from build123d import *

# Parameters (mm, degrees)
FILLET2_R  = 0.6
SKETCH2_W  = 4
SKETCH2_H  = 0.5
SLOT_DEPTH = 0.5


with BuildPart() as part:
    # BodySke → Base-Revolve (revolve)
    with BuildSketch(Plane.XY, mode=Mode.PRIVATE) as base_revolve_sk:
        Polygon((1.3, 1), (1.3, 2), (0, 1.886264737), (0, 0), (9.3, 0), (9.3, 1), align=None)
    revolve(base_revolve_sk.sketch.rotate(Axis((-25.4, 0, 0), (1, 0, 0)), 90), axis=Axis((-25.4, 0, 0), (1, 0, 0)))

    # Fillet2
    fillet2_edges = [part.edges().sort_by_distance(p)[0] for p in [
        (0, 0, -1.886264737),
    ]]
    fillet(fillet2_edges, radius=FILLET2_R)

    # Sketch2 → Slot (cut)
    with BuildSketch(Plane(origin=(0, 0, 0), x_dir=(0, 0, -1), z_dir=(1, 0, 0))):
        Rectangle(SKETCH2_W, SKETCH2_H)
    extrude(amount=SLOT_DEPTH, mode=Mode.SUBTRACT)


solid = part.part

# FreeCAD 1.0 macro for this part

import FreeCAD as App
import Part
import Sketcher
Q = App.Units.Quantity


def edges_at(feature, points):
    """Names of the edges that pass closest to the given points."""
    edges = feature.Shape.Edges
    near = lambda p: min(range(len(edges)), key=lambda i: edges[i].distToShape(Part.Vertex(*p))[0])
    return sorted({f"Edge{near(p) + 1}" for p in points})

doc = App.newDocument("Part")
body = doc.addObject("PartDesign::Body", "Body")

sketch1 = doc.addObject("Sketcher::SketchObject", "Sketch")
body.addObject(sketch1)
sketch1.AttachmentSupport = (doc.XY_Plane, [""])
sketch1.MapMode = "FlatFace"
sketch1.addGeometry(Part.LineSegment(App.Vector(1.3, 1, 0), App.Vector(1.3, 2, 0)), False)
sketch1.addGeometry(Part.LineSegment(App.Vector(1.3, 2, 0), App.Vector(0, 1.886265, 0)), False)
sketch1.addGeometry(Part.LineSegment(App.Vector(0, 1.886265, 0), App.Vector(0, 0, 0)), False)
sketch1.addGeometry(Part.LineSegment(App.Vector(0, 0, 0), App.Vector(9.3, 0, 0)), False)
sketch1.addGeometry(Part.LineSegment(App.Vector(9.3, 0, 0), App.Vector(9.3, 1, 0)), False)
sketch1.addGeometry(Part.LineSegment(App.Vector(9.3, 1, 0), App.Vector(1.3, 1, 0)), False)
sketch1.addConstraint(Sketcher.Constraint("Coincident", 0, 2, 1, 1))
sketch1.addConstraint(Sketcher.Constraint("Coincident", 1, 2, 2, 1))
sketch1.addConstraint(Sketcher.Constraint("Coincident", 2, 2, 3, 1))
sketch1.addConstraint(Sketcher.Constraint("Coincident", 3, 2, 4, 1))
sketch1.addConstraint(Sketcher.Constraint("Coincident", 4, 2, 5, 1))
sketch1.addConstraint(Sketcher.Constraint("Coincident", 5, 2, 0, 1))
sketch1.addConstraint(Sketcher.Constraint("Vertical", 0))
sketch1.addConstraint(Sketcher.Constraint("Vertical", 2))
sketch1.addConstraint(Sketcher.Constraint("Horizontal", 3))
sketch1.addConstraint(Sketcher.Constraint("Vertical", 4))
sketch1.addConstraint(Sketcher.Constraint("Horizontal", 5))
sketch1.addConstraint(Sketcher.Constraint("Coincident", 2, 2, -1, 1))
sketch1.addConstraint(Sketcher.Constraint("Equal", 0, 4))
sketch1.addConstraint(Sketcher.Constraint("DistanceX", 5, 2, 5, 1, 8.0))
sketch1.addConstraint(Sketcher.Constraint("DistanceY", 0, 1, 0, 2, 1.0))
sketch1.addConstraint(Sketcher.Constraint("Angle", 1, Q("-175 deg")))
sketch1.addConstraint(Sketcher.Constraint("DistanceX", 3, 1, 3, 2, 9.3))
revolution = doc.addObject("PartDesign::Revolution", "Revolution")
body.addObject(revolution)
revolution.Profile = sketch1
revolution.ReferenceAxis = (sketch1, ["H_Axis"])
revolution.Angle = 360
doc.recompute()

fillet = doc.addObject("PartDesign::Fillet", "Fillet")
body.addObject(fillet)
fillet.Base = (revolution, edges_at(revolution, [(0, 0, -1.886)]))
fillet.Radius = 0.6

sketch2 = doc.addObject("Sketcher::SketchObject", "Sketch001")
body.addObject(sketch2)
sketch2.AttachmentSupport = (doc.YZ_Plane, [""])
sketch2.MapMode = "FlatFace"
sketch2.addGeometry(Part.LineSegment(App.Vector(0.25, 2, 0), App.Vector(-0.25, 2, 0)), False)
sketch2.addGeometry(Part.LineSegment(App.Vector(-0.25, 2, 0), App.Vector(-0.25, -2, 0)), False)
sketch2.addGeometry(Part.LineSegment(App.Vector(-0.25, -2, 0), App.Vector(0.25, -2, 0)), False)
sketch2.addGeometry(Part.LineSegment(App.Vector(0.25, -2, 0), App.Vector(0.25, 2, 0)), False)
sketch2.addConstraint(Sketcher.Constraint("Coincident", 0, 2, 1, 1))
sketch2.addConstraint(Sketcher.Constraint("Coincident", 1, 2, 2, 1))
sketch2.addConstraint(Sketcher.Constraint("Coincident", 2, 2, 3, 1))
sketch2.addConstraint(Sketcher.Constraint("Coincident", 3, 2, 0, 1))
sketch2.addConstraint(Sketcher.Constraint("Horizontal", 0))
sketch2.addConstraint(Sketcher.Constraint("Vertical", 1))
sketch2.addConstraint(Sketcher.Constraint("Horizontal", 2))
sketch2.addConstraint(Sketcher.Constraint("Vertical", 3))
sketch2.addConstraint(Sketcher.Constraint("Symmetric", 0, 2, 2, 2, -1, 1))
sketch2.addConstraint(Sketcher.Constraint("DistanceY", 1, 2, 1, 1, 4.0))
sketch2.addConstraint(Sketcher.Constraint("DistanceX", 0, 2, 0, 1, 0.5))
pocket1 = doc.addObject("PartDesign::Pocket", "Pocket")
body.addObject(pocket1)
pocket1.Profile = sketch2
pocket1.Length = 0.5
pocket1.Reversed = True

doc.recompute()
